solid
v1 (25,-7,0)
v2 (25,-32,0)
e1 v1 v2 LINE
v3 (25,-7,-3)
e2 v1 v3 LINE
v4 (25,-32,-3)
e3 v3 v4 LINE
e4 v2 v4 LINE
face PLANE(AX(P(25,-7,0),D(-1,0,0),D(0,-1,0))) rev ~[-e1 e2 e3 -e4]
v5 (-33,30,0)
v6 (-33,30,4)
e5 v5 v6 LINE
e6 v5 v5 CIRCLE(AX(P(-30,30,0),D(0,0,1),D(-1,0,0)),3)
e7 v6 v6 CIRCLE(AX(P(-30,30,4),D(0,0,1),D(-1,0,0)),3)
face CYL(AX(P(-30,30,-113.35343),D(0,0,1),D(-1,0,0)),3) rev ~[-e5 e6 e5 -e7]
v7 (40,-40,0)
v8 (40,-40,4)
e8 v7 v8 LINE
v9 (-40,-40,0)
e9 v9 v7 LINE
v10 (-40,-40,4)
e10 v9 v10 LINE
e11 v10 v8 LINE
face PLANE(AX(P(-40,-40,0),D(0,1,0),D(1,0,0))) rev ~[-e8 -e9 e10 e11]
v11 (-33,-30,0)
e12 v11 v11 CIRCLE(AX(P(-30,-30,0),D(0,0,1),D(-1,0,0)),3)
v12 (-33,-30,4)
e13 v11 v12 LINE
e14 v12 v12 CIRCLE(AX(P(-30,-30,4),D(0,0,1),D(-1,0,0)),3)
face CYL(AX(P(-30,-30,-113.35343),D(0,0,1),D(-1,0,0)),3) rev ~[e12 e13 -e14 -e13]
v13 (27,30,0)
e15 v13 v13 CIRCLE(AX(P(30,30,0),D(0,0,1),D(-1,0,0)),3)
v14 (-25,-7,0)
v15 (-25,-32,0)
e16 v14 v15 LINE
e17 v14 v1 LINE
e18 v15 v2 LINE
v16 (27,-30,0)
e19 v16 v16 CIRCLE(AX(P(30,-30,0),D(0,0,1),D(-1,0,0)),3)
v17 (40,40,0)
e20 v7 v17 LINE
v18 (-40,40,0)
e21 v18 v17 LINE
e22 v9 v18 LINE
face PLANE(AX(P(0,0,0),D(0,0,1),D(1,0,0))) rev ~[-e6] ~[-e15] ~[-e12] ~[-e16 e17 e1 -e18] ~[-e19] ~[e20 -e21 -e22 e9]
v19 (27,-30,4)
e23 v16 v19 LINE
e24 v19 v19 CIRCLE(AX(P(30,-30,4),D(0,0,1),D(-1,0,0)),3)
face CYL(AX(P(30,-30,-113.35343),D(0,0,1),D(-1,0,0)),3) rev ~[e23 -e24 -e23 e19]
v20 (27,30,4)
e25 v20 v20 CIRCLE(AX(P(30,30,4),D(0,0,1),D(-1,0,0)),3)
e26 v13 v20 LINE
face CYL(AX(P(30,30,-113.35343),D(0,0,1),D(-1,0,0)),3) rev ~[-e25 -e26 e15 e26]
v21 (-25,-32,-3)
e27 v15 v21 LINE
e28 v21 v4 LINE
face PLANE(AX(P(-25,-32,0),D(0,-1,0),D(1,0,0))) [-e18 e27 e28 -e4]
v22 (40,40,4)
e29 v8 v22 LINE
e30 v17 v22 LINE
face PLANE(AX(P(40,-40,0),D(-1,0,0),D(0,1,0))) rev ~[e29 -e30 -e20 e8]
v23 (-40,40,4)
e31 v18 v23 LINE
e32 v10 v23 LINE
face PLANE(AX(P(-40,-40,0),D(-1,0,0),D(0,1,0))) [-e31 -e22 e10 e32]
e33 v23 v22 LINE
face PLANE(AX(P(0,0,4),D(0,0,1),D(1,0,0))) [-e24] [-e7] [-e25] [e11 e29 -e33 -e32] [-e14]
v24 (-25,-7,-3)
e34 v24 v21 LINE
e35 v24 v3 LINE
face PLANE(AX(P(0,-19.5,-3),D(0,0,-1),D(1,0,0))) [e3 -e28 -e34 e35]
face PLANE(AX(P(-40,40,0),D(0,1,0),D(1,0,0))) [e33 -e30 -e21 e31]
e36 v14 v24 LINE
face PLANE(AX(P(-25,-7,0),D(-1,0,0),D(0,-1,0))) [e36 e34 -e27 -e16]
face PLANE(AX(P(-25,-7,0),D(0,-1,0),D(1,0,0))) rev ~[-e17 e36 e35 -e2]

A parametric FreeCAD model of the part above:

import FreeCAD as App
import Part
import Sketcher
from FreeCAD import Vector
Q = App.Units.Quantity

doc = App.newDocument("Part")
body = doc.addObject("PartDesign::Body", "Body")

# Sketch on XY plane
sketch1 = body.newObject("Sketcher::SketchObject", "Sketch")
sketch1.AttachmentSupport = (doc.getObject("XY_Plane"), [""])
sketch1.MapMode = "FlatFace"
sketch1.addGeometry(Part.LineSegment(Vector(-40, 40, 0), Vector(-40, -40, 0)), False)
sketch1.addGeometry(Part.LineSegment(Vector(-40, -40, 0), Vector(40, -40, 0)), False)
sketch1.addGeometry(Part.LineSegment(Vector(40, -40, 0), Vector(40, 40, 0)), False)
sketch1.addGeometry(Part.LineSegment(Vector(40, 40, 0), Vector(-40, 40, 0)), False)
sketch1.addConstraint(Sketcher.Constraint("Coincident", 0, 2, 1, 1))
sketch1.addConstraint(Sketcher.Constraint("Coincident", 1, 2, 2, 1))
sketch1.addConstraint(Sketcher.Constraint("Coincident", 2, 2, 3, 1))
sketch1.addConstraint(Sketcher.Constraint("Coincident", 3, 2, 0, 1))
sketch1.addConstraint(Sketcher.Constraint("Vertical", 0))
sketch1.addConstraint(Sketcher.Constraint("Horizontal", 1))
sketch1.addConstraint(Sketcher.Constraint("Vertical", 2))
sketch1.addConstraint(Sketcher.Constraint("Horizontal", 3))
sketch1.addConstraint(Sketcher.Constraint("Symmetric", 0, 2, 2, 2, -1, 1))
sketch1.addConstraint(Sketcher.Constraint("Equal", 3, 0))
sketch1.addConstraint(Sketcher.Constraint("DistanceX", 1, 1, 1, 2, Q("80 mm")))
pad1 = body.newObject("PartDesign::Pad", "Pad")
pad1.Profile = sketch1
pad1.Length = 4

# Sketch on XY plane
sketch2 = body.newObject("Sketcher::SketchObject", "Sketch001")
sketch2.AttachmentSupport = (doc.getObject("XY_Plane"), [""])
sketch2.MapMode = "FlatFace"
sketch2.addGeometry(Part.LineSegment(Vector(-25, -32, 0), Vector(-25, -7, 0)), False)
sketch2.addGeometry(Part.LineSegment(Vector(-25, -7, 0), Vector(25, -7, 0)), False)
sketch2.addGeometry(Part.LineSegment(Vector(25, -7, 0), Vector(25, -32, 0)), False)
sketch2.addGeometry(Part.LineSegment(Vector(25, -32, 0), Vector(-25, -32, 0)), False)
sketch2.addConstraint(Sketcher.Constraint("Coincident", 0, 2, 1, 1))
sketch2.addConstraint(Sketcher.Constraint("Coincident", 1, 2, 2, 1))
sketch2.addConstraint(Sketcher.Constraint("Coincident", 2, 2, 3, 1))
sketch2.addConstraint(Sketcher.Constraint("Coincident", 3, 2, 0, 1))
sketch2.addConstraint(Sketcher.Constraint("Vertical", 0))
sketch2.addConstraint(Sketcher.Constraint("Horizontal", 1))
sketch2.addConstraint(Sketcher.Constraint("Vertical", 2))
sketch2.addConstraint(Sketcher.Constraint("Horizontal", 3))
sketch2.addConstraint(Sketcher.Constraint("DistanceX", 1, 1, 1, 2, Q("50 mm")))
sketch2.addConstraint(Sketcher.Constraint("DistanceY", 0, 1, 0, 2, Q("25 mm")))
sketch2.addConstraint(Sketcher.Constraint("DistanceX", 0, 2, -1, 1, Q("25 mm")))
sketch2.addConstraint(Sketcher.Constraint("DistanceY", 0, 2, -1, 1, Q("7 mm")))
pad2 = body.newObject("PartDesign::Pad", "Pad001")
pad2.Profile = sketch2
pad2.Length = 3
pad2.Reversed = True

# Sketch on XY plane
sketch3 = body.newObject("Sketcher::SketchObject", "Sketch002")
sketch3.AttachmentSupport = (doc.getObject("XY_Plane"), [""])
sketch3.MapMode = "FlatFace"
sketch3.addGeometry(Part.Circle(Vector(-30, -30, 0), Vector(0, 0, 1), 3), False)
sketch3.addGeometry(Part.Circle(Vector(30, -30, 0), Vector(0, 0, 1), 3), False)
sketch3.addGeometry(Part.Circle(Vector(30, 30, 0), Vector(0, 0, 1), 3), False)
sketch3.addGeometry(Part.Circle(Vector(-30, 30, 0), Vector(0, 0, 1), 3), False)
sketch3.addConstraint(Sketcher.Constraint("Equal", 0, 1))
sketch3.addConstraint(Sketcher.Constraint("Equal", 1, 2))
sketch3.addConstraint(Sketcher.Constraint("Equal", 2, 3))
sketch3.addConstraint(Sketcher.Constraint("Symmetric", 0, 3, 2, 3, -1, 1))
sketch3.addConstraint(Sketcher.Constraint("Symmetric", 1, 3, 3, 3, -1, 1))
sketch3.addConstraint(Sketcher.Constraint("Symmetric", 0, 3, 1, 3, -2))
sketch3.addConstraint(Sketcher.Constraint("Diameter", 0, Q("6 mm")))
sketch3.addConstraint(Sketcher.Constraint("DistanceX", 0, 3, -1, 1, Q("30 mm")))
sketch3.addConstraint(Sketcher.Constraint("DistanceY", 0, 3, -1, 1, Q("30 mm")))
doc.recompute()
hole = body.newObject("PartDesign::Hole", "Hole")
hole.Profile = sketch3
hole.ThreadType = "None"
hole.Diameter = 6
hole.DepthType = "ThroughAll"
hole.Reversed = True

doc.recompute()
